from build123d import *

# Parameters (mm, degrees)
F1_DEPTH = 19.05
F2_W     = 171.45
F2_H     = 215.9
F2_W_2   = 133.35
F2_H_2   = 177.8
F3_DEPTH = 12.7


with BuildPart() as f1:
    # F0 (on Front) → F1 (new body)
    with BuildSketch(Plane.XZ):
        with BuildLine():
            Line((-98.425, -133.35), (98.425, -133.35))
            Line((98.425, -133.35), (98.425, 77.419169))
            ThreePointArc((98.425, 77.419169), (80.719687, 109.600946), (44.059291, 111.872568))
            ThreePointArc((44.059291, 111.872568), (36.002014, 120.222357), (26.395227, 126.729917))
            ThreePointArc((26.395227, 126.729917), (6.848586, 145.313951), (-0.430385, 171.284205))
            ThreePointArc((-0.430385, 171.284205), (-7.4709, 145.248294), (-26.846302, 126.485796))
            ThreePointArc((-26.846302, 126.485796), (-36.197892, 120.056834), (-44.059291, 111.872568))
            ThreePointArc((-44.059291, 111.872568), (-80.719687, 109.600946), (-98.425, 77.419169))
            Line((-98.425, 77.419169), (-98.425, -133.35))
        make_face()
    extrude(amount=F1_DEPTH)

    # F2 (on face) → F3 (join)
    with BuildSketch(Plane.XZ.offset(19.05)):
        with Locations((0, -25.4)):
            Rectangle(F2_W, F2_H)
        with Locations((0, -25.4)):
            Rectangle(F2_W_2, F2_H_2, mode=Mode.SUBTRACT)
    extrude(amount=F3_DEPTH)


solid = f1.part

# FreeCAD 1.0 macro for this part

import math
import FreeCAD as App
import Part
import Sketcher

V = App.Vector
Q = App.Units.Quantity


def add_polygon(sketch, points):
    """Adds a closed chain of lines whose ends are joined by coincident constraints."""
    first, n = sketch.GeometryCount, len(points)
    for a, b in zip(points, points[1:] + points[:1]):
        sketch.addGeometry(Part.LineSegment(App.Vector(*a, 0), App.Vector(*b, 0)), False)
    for i in range(n):
        sketch.addConstraint(Sketcher.Constraint("Coincident", first + i, 2, first + (i + 1) % n, 1))

doc = App.newDocument("Part")
body = doc.addObject("PartDesign::Body", "Body")

# Sketch on XZ plane
sketch1 = body.newObject("Sketcher::SketchObject", "Sketch")
sketch1.AttachmentSupport = (doc.getObject("XZ_Plane"), [""])
sketch1.MapMode = "FlatFace"
sketch1.addGeometry([
    Part.LineSegment(V(-98.425, -133.35, 0), V(98.425, -133.35, 0)),  # 0
    Part.LineSegment(V(98.425, -133.35, 0), V(98.425, 77.419169, 0)),  # 1
    Part.ArcOfCircle(Part.Circle(V(60.325001, 77.41917, 0), V(0, 0, 1), 38.099999), math.radians(-0.000001), math.radians(115.27235)),  # 2
    Part.ArcOfCircle(Part.Circle(V(0.000016, 77.41919, 0), V(0, 0, 1), 55.930805), math.radians(38.024621), math.radians(61.840599)),  # 3
    Part.ArcOfCircle(Part.Circle(V(50.369081, 171.517129, 0), V(0, 0, 1), 50.8), math.radians(-179.737292), math.radians(-118.159407)),  # 4
    Part.ArcOfCircle(Part.Circle(V(-51.229852, 171.051283, 0), V(0, 0, 1), 50.800001), math.radians(-61.315177), math.radians(0.262707)),  # 5
    Part.ArcOfCircle(Part.Circle(V(-0.000012, 77.419182, 0), V(0, 0, 1), 55.930813), math.radians(118.684818), math.radians(141.975376)),  # 6
    Part.ArcOfCircle(Part.Circle(V(-60.325001, 77.41917, 0), V(0, 0, 1), 38.099999), math.radians(64.72765), math.radians(180.000001)),  # 7
    Part.LineSegment(V(-98.425, 77.419169, 0), V(-98.425, -133.35, 0)),  # 8
], False)
sketch1.addConstraint([
    Sketcher.Constraint("Coincident", 0, 2, 1, 1),
    Sketcher.Constraint("Tangent", 1, 2, 2, 1),
    Sketcher.Constraint("Coincident", 2, 2, 3, 1),
    Sketcher.Constraint("Tangent", 3, 2, 4, 2),
    Sketcher.Constraint("Tangent", 4, 1, 5, 2),
    Sketcher.Constraint("Tangent", 5, 1, 6, 1),
    Sketcher.Constraint("Coincident", 6, 2, 7, 1),
    Sketcher.Constraint("Tangent", 7, 2, 8, 1),
    Sketcher.Constraint("Coincident", 8, 2, 0, 1),
    Sketcher.Constraint("Horizontal", 0),
    Sketcher.Constraint("Vertical", 1),
    Sketcher.Constraint("Vertical", 8),
    Sketcher.Constraint("Equal", 4, 5),
    Sketcher.Constraint("Equal", 2, 7),
    Sketcher.Constraint("Symmetric", 3, 3, 6, 3, -2),
    Sketcher.Constraint("Symmetric", 2, 3, 7, 3, -2),
    Sketcher.Constraint("Horizontal", 2, 2, 6, 2),
    Sketcher.Constraint("Radius", 4, Q("2 in")),
    Sketcher.Constraint("Radius", 2, Q("1.5 in")),
    Sketcher.Constraint("DistanceX", 0, 1, 0, 2, Q("7.75 in")),
    Sketcher.Constraint("DistanceY", 0, 2, -1, 1, Q("5.25 in")),
    Sketcher.Constraint("Radius", 3, Q("55.930805 mm")),
    Sketcher.Constraint("DistanceY", 1, 1, 1, 2, Q("210.769169 mm")),
    Sketcher.Constraint("DistanceX", 5, 1, -1, 1, Q("26.846302 mm")),
    Sketcher.Constraint("DistanceY", 6, 3, 5, 3, Q("93.6321 mm")),
    Sketcher.Constraint("DistanceY", 2, 3, 2, 2, Q("34.453398 mm")),
])
pad1 = body.newObject("PartDesign::Pad", "Pad")
pad1.Profile = sketch1
pad1.Length = Q("0.75 in")

# Sketch on XZ plane
sketch2 = body.newObject("Sketcher::SketchObject", "Sketch001")
sketch2.AttachmentSupport = (doc.getObject("XZ_Plane"), [""])
sketch2.MapMode = "FlatFace"
sketch2.AttachmentOffset = App.Placement(V(0, 0, 0.75 * 25.4), App.Rotation())
add_polygon(sketch2, [(-86, 83), (-86, -133), (86, -133), (86, 83)])  # lines 0-3
add_polygon(sketch2, [(67, -114), (-67, -114), (-67, 64), (67, 64)])  # lines 4-7
sketch2.addConstraint([
    Sketcher.Constraint("Vertical", 0),
    Sketcher.Constraint("Horizontal", 1),
    Sketcher.Constraint("Vertical", 2),
    Sketcher.Constraint("Horizontal", 3),
    Sketcher.Constraint("Horizontal", 4),
    Sketcher.Constraint("Vertical", 5),
    Sketcher.Constraint("Horizontal", 6),
    Sketcher.Constraint("Vertical", 7),
    Sketcher.Constraint("DistanceY", 5, 1, 5, 2, Q("7 in")),
    Sketcher.Constraint("DistanceY", 0, 2, 0, 1, Q("8.5 in")),
    Sketcher.Constraint("DistanceX", 4, 2, 1, 2, Q("6 in")),
    Sketcher.Constraint("DistanceX", 3, 2, 6, 2, Q("6 in")),
    Sketcher.Constraint("DistanceX", 1, 1, 1, 2, Q("6.75 in")),
    Sketcher.Constraint("DistanceY", 4, 2, -1, 1, Q("4.5 in")),
    Sketcher.Constraint("DistanceY", 0, 2, -1, 1, Q("5.25 in")),
    Sketcher.Constraint("DistanceX", 0, 2, -1, 1, Q("3.375 in")),
])
pad2 = body.newObject("PartDesign::Pad", "Pad001")
pad2.Profile = sketch2
pad2.Length = Q("0.5 in")

doc.recompute()
